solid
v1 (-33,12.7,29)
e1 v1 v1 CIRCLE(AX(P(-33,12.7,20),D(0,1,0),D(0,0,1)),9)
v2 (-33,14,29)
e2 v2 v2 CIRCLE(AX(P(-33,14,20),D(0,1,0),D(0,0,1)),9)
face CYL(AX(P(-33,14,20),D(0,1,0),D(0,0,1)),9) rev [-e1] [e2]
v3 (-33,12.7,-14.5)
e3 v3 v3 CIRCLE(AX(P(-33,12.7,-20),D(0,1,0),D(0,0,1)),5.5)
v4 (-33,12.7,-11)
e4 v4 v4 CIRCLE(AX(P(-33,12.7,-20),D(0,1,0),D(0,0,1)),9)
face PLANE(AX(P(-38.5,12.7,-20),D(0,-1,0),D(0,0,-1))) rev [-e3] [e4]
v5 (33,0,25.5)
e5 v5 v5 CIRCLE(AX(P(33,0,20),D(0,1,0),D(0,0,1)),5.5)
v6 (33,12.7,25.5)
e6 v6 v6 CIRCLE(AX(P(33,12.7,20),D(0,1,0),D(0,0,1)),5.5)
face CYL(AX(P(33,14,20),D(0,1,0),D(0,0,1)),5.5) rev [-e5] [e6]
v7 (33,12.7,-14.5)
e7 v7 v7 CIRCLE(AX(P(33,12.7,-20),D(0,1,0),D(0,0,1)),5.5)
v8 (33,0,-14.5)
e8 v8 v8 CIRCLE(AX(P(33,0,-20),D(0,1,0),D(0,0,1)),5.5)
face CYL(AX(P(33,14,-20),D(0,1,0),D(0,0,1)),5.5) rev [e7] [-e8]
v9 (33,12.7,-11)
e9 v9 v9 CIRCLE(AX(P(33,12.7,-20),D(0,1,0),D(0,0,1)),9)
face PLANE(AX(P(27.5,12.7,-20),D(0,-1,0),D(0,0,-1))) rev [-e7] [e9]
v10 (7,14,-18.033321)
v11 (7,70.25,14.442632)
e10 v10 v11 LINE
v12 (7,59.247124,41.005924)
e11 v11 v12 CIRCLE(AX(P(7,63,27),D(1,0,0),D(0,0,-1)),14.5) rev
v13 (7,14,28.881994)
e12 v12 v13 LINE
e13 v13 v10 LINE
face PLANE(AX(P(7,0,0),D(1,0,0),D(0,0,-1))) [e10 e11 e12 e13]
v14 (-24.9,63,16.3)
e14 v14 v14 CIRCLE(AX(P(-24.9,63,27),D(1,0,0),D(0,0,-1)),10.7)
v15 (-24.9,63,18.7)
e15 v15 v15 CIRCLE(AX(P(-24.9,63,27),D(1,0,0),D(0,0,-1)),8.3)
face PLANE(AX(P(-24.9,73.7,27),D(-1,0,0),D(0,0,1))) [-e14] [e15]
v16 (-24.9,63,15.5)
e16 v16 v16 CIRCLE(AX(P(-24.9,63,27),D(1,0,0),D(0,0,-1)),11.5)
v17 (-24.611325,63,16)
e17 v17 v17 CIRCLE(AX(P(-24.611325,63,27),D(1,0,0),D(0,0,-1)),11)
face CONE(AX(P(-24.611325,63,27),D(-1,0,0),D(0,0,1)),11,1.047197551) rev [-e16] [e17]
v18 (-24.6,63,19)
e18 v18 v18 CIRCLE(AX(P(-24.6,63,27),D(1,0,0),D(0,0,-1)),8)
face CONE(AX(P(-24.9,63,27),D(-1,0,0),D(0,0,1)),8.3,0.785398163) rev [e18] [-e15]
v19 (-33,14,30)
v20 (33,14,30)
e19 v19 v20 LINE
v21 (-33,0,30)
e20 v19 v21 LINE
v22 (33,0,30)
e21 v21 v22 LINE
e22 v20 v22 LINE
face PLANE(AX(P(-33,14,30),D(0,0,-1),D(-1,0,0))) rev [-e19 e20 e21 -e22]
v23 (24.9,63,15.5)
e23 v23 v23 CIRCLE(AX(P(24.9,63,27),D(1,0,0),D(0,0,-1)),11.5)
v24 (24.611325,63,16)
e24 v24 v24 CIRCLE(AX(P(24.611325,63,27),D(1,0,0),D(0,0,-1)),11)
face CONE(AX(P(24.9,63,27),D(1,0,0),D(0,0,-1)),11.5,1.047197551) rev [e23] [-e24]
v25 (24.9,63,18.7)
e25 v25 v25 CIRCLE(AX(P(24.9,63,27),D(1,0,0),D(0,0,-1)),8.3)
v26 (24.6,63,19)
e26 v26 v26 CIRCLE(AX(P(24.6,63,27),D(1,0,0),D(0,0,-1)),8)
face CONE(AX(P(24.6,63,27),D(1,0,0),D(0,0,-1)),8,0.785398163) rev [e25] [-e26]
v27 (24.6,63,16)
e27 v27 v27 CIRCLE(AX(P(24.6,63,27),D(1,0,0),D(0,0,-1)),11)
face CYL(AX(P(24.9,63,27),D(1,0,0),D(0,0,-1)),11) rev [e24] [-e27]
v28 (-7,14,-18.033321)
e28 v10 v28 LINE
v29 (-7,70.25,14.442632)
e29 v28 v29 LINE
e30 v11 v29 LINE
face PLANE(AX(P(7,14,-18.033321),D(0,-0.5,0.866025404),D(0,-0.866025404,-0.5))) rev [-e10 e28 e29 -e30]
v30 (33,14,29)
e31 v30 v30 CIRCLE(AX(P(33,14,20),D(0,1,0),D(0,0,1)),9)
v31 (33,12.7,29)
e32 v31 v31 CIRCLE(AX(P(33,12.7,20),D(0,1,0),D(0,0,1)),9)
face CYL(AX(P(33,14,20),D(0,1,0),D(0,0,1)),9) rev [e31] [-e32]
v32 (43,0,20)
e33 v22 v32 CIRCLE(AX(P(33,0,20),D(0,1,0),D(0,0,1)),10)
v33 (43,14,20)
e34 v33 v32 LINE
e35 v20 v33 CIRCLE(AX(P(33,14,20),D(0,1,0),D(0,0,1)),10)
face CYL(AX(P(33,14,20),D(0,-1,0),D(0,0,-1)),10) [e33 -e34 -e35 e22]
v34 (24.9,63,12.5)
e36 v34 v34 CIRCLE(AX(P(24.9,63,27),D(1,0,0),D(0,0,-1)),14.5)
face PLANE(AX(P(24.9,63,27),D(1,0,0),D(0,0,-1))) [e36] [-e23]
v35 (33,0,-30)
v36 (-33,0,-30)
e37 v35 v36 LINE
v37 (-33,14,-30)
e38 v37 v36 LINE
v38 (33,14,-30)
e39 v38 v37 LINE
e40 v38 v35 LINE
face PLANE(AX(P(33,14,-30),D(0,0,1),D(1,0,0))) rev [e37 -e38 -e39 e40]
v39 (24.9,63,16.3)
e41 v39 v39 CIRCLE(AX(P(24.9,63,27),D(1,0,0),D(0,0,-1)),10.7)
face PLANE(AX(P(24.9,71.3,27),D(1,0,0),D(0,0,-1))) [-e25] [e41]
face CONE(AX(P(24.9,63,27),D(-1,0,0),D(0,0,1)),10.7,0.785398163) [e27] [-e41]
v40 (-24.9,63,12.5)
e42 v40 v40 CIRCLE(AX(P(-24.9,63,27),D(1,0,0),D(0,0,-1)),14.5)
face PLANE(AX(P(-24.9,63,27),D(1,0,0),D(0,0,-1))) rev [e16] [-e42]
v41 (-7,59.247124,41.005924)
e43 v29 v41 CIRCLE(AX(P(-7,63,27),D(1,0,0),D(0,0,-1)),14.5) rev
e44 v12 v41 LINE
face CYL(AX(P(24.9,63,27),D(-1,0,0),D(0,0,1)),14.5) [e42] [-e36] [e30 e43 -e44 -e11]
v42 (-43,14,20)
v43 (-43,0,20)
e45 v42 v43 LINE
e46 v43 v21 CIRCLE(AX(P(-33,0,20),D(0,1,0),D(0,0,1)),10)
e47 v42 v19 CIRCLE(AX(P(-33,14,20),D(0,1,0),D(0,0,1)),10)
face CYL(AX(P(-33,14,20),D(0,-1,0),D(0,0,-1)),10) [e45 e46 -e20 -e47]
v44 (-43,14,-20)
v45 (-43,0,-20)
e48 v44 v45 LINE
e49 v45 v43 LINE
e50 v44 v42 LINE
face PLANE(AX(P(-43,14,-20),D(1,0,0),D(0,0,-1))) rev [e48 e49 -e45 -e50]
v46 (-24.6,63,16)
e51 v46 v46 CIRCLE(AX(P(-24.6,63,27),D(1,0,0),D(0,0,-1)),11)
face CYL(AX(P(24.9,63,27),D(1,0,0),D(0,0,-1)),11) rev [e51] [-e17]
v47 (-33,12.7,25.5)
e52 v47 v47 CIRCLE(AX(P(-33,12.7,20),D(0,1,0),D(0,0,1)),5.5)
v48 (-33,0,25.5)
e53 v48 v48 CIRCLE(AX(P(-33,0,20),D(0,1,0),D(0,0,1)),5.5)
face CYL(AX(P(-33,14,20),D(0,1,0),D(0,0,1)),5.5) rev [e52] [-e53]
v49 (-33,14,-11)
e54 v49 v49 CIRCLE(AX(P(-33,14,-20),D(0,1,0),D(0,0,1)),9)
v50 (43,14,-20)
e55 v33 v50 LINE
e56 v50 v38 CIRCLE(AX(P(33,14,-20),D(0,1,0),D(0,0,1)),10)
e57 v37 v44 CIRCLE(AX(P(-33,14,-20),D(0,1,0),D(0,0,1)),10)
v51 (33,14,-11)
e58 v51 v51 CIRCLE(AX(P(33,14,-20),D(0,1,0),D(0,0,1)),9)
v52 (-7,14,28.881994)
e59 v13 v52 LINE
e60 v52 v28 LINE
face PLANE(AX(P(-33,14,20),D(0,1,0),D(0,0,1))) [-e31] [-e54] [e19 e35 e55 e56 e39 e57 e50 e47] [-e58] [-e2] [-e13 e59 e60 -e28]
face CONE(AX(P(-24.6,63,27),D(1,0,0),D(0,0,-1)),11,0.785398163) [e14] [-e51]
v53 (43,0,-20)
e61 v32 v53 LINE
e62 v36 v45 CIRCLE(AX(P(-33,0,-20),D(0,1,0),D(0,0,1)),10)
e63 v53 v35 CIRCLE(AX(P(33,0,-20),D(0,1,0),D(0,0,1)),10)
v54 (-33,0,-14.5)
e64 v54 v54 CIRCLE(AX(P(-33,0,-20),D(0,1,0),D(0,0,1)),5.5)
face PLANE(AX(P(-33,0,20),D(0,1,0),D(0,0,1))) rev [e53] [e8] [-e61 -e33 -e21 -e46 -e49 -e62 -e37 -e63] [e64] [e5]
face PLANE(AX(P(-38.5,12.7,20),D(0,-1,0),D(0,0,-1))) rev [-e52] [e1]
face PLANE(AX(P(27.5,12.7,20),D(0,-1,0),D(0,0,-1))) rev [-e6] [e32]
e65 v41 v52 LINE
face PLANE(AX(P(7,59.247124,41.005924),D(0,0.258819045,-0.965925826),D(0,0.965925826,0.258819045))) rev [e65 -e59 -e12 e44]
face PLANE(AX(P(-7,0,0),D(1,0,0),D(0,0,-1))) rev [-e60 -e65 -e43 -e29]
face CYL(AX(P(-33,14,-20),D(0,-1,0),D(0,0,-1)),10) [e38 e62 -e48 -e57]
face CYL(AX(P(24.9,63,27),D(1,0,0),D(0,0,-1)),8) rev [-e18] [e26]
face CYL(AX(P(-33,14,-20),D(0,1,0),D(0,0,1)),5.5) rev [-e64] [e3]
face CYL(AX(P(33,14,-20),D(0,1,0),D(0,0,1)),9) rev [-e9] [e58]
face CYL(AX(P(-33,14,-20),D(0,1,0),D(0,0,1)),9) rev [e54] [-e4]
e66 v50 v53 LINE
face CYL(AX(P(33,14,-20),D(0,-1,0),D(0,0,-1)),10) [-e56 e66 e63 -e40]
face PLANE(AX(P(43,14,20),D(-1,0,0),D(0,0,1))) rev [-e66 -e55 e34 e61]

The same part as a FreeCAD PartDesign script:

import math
import FreeCAD as App
import Part
import Sketcher
Q = App.Units.Quantity

doc = App.newDocument("Part")
params = doc.addObject("Spreadsheet::Sheet", "Params")
for row, (alias, value) in enumerate([
    ("sketch1_radius", "10 mm"),
    ("sketch1_width", "66 mm"),
    ("sketch1_height", "40 mm"),
    ("pad1_length", "14 mm"),
    ("pad2_length", "7 mm"),
    ("pad2_length2", "7 mm"),
    ("sketch3_diameter", "29 mm"),
    ("pad3_length", "24.9 mm"),
    ("pad3_length2", "24.9 mm"),
    ("sketch4_width", "9 mm"),
    ("sketch4_height", "14 mm"),
    ("sketch4_width2", "5.5 mm"),
    ("sketch4_height2", "1.3 mm"),
    ("groove_angle", "360 deg"),
    ("sketch5_width", "9 mm"),
    ("sketch5_height", "14 mm"),
    ("sketch5_width2", "5.5 mm"),
    ("sketch5_height2", "1.3 mm"),
    ("groove2_angle", "360 deg"),
    ("sketch6_width", "9 mm"),
    ("sketch6_height", "14 mm"),
    ("sketch6_width2", "5.5 mm"),
    ("sketch6_height2", "1.3 mm"),
    ("groove3_angle", "360 deg"),
    ("sketch7_width", "9 mm"),
    ("sketch7_height", "14 mm"),
    ("sketch7_width2", "5.5 mm"),
    ("sketch7_height2", "1.3 mm"),
    ("groove4_angle", "360 deg"),
    ("sketch8_width", "49.8 mm"),
    ("sketch8_height", "11.5 mm"),
    ("groove5_angle", "360 deg"),
    ("sketch9_width", "49.2 mm"),
    ("sketch9_width2", "49.8 mm"),
    ("sketch9_height", "2.4 mm"),
    ("revolution_angle", "360 deg"),
], start=1):
    params.set(f"A{row}", alias)
    params.set(f"B{row}", "=" + value)
    params.setAlias(f"B{row}", alias)

body = doc.addObject("PartDesign::Body", "Body")

# Sketch on XZ plane
sketch1 = doc.addObject("Sketcher::SketchObject", "Sketch")
body.addObject(sketch1)
sketch1.AttachmentSupport = (doc.XZ_Plane, [""])
sketch1.MapMode = "FlatFace"
sketch1.addGeometry(Part.LineSegment(App.Vector(-33, 30, 0), App.Vector(33, 30, 0)), False)
sketch1.addGeometry(Part.ArcOfCircle(Part.Circle(App.Vector(33, 20, 0), App.Vector(0, 0, 1), 10), math.radians(0), math.radians(90)), False)
sketch1.addGeometry(Part.LineSegment(App.Vector(43, 20, 0), App.Vector(43, -20, 0)), False)
sketch1.addGeometry(Part.ArcOfCircle(Part.Circle(App.Vector(33, -20, 0), App.Vector(0, 0, 1), 10), math.radians(-90), math.radians(0)), False)
sketch1.addGeometry(Part.LineSegment(App.Vector(33, -30, 0), App.Vector(-33, -30, 0)), False)
sketch1.addGeometry(Part.ArcOfCircle(Part.Circle(App.Vector(-33, -20, 0), App.Vector(0, 0, 1), 10), math.radians(180), math.radians(270)), False)
sketch1.addGeometry(Part.LineSegment(App.Vector(-43, -20, 0), App.Vector(-43, 20, 0)), False)
sketch1.addGeometry(Part.ArcOfCircle(Part.Circle(App.Vector(-33, 20, 0), App.Vector(0, 0, 1), 10), math.radians(90), math.radians(180)), False)
sketch1.addConstraint(Sketcher.Constraint("Tangent", 0, 2, 1, 2))
sketch1.addConstraint(Sketcher.Constraint("Tangent", 1, 1, 2, 1))
sketch1.addConstraint(Sketcher.Constraint("Tangent", 2, 2, 3, 2))
sketch1.addConstraint(Sketcher.Constraint("Tangent", 3, 1, 4, 1))
sketch1.addConstraint(Sketcher.Constraint("Tangent", 4, 2, 5, 2))
sketch1.addConstraint(Sketcher.Constraint("Tangent", 5, 1, 6, 1))
sketch1.addConstraint(Sketcher.Constraint("Tangent", 6, 2, 7, 2))
sketch1.addConstraint(Sketcher.Constraint("Tangent", 7, 1, 0, 1))
sketch1.addConstraint(Sketcher.Constraint("Horizontal", 0))
sketch1.addConstraint(Sketcher.Constraint("Vertical", 2))
sketch1.addConstraint(Sketcher.Constraint("Horizontal", 4))
sketch1.addConstraint(Sketcher.Constraint("Vertical", 6))
sketch1.addConstraint(Sketcher.Constraint("Equal", 1, 3))
sketch1.addConstraint(Sketcher.Constraint("Equal", 3, 5))
sketch1.addConstraint(Sketcher.Constraint("Equal", 5, 7))
sketch1.addConstraint(Sketcher.Constraint("Symmetric", 1, 3, 5, 3, -1, 1))
sketch1.addConstraint(Sketcher.Constraint("Radius", 1, Q("10 mm")))
sketch1.addConstraint(Sketcher.Constraint("DistanceX", 0, 1, 0, 2, Q("66 mm")))
sketch1.addConstraint(Sketcher.Constraint("DistanceY", 2, 2, 2, 1, Q("40 mm")))
sketch1.setExpression("Constraints[16]", "Params.sketch1_radius")
sketch1.setExpression("Constraints[17]", "Params.sketch1_width")
sketch1.setExpression("Constraints[18]", "Params.sketch1_height")
pad1 = doc.addObject("PartDesign::Pad", "Pad")
body.addObject(pad1)
pad1.Profile = sketch1
pad1.setExpression("Length", "Params.pad1_length")
pad1.Reversed = True

# Sketch on YZ plane
sketch2 = doc.addObject("Sketcher::SketchObject", "Sketch001")
body.addObject(sketch2)
sketch2.AttachmentSupport = (doc.YZ_Plane, [""])
sketch2.MapMode = "FlatFace"
sketch2.addGeometry(Part.LineSegment(App.Vector(59.247124, 41.005924, 0), App.Vector(14, 28.881994, 0)), False)
sketch2.addGeometry(Part.LineSegment(App.Vector(14, 28.881994, 0), App.Vector(14, -18.033321, 0)), False)
sketch2.addGeometry(Part.LineSegment(App.Vector(14, -18.033321, 0), App.Vector(70.25, 14.442632, 0)), False)
sketch2.addGeometry(Part.LineSegment(App.Vector(70.25, 14.442632, 0), App.Vector(59.247124, 41.005924, 0)), False)
sketch2.addConstraint(Sketcher.Constraint("Coincident", 0, 2, 1, 1))
sketch2.addConstraint(Sketcher.Constraint("Coincident", 1, 2, 2, 1))
sketch2.addConstraint(Sketcher.Constraint("Coincident", 2, 2, 3, 1))
sketch2.addConstraint(Sketcher.Constraint("Coincident", 3, 2, 0, 1))
sketch2.addConstraint(Sketcher.Constraint("Vertical", 1))
sketch2.addConstraint(Sketcher.Constraint("Angle", 0, Q("-165 deg")))
sketch2.addConstraint(Sketcher.Constraint("Angle", 2, Q("30 deg")))
sketch2.addConstraint(Sketcher.Constraint("DistanceX", -1, 1, 0, 2, Q("14 mm")))
sketch2.addConstraint(Sketcher.Constraint("Angle", 3, Q("112.5 deg")))
sketch2.addConstraint(Sketcher.Constraint("DistanceX", -1, 1, 2, 2, Q("70.25 mm")))
sketch2.addConstraint(Sketcher.Constraint("Distance", 3, Q("28.751901 mm")))
sketch2.addConstraint(Sketcher.Constraint("DistanceY", 1, 2, -1, 1, Q("18.033321 mm")))
pad2 = doc.addObject("PartDesign::Pad", "Pad001")
body.addObject(pad2)
pad2.Profile = sketch2
pad2.Type = "TwoLengths"
pad2.setExpression("Length", "Params.pad2_length")
pad2.setExpression("Length2", "Params.pad2_length2")

# Sketch on YZ plane
sketch3 = doc.addObject("Sketcher::SketchObject", "Sketch002")
body.addObject(sketch3)
sketch3.AttachmentSupport = (doc.YZ_Plane, [""])
sketch3.MapMode = "FlatFace"
sketch3.addGeometry(Part.Circle(App.Vector(63, 27, 0), App.Vector(0, 0, 1), 14.5), False)
sketch3.addConstraint(Sketcher.Constraint("Diameter", 0, Q("29 mm")))
sketch3.addConstraint(Sketcher.Constraint("DistanceX", -1, 1, 0, 3, Q("63 mm")))
sketch3.addConstraint(Sketcher.Constraint("DistanceY", -1, 1, 0, 3, Q("27 mm")))
sketch3.setExpression("Constraints[0]", "Params.sketch3_diameter")
pad3 = doc.addObject("PartDesign::Pad", "Pad002")
body.addObject(pad3)
pad3.Profile = sketch3
pad3.Type = "TwoLengths"
pad3.setExpression("Length", "Params.pad3_length")
pad3.setExpression("Length2", "Params.pad3_length2")

# Sketch on XY plane
sketch4 = doc.addObject("Sketcher::SketchObject", "Sketch003")
body.addObject(sketch4)
sketch4.AttachmentSupport = (doc.XY_Plane, [""])
sketch4.MapMode = "FlatFace"
sketch4.AttachmentOffset = App.Placement(App.Vector(0, 0, 20), App.Rotation())
sketch4.addGeometry(Part.LineSegment(App.Vector(-38.5, 0, 0), App.Vector(-33, 0, 0)), False)
sketch4.addGeometry(Part.LineSegment(App.Vector(-33, 0, 0), App.Vector(-33, 14, 0)), False)
sketch4.addGeometry(Part.LineSegment(App.Vector(-33, 14, 0), App.Vector(-42, 14, 0)), False)
sketch4.addGeometry(Part.LineSegment(App.Vector(-42, 14, 0), App.Vector(-42, 12.7, 0)), False)
sketch4.addGeometry(Part.LineSegment(App.Vector(-42, 12.7, 0), App.Vector(-38.5, 12.7, 0)), False)
sketch4.addGeometry(Part.LineSegment(App.Vector(-38.5, 12.7, 0), App.Vector(-38.5, 0, 0)), False)
sketch4.addGeometry(Part.LineSegment(App.Vector(-33, 14, 0), App.Vector(-33, 0, 0)), True)  # axis
sketch4.addConstraint(Sketcher.Constraint("Coincident", 0, 2, 1, 1))
sketch4.addConstraint(Sketcher.Constraint("Coincident", 1, 2, 2, 1))
sketch4.addConstraint(Sketcher.Constraint("Coincident", 2, 2, 3, 1))
sketch4.addConstraint(Sketcher.Constraint("Coincident", 3, 2, 4, 1))
sketch4.addConstraint(Sketcher.Constraint("Coincident", 4, 2, 5, 1))
sketch4.addConstraint(Sketcher.Constraint("Coincident", 5, 2, 0, 1))
sketch4.addConstraint(Sketcher.Constraint("Horizontal", 0))
sketch4.addConstraint(Sketcher.Constraint("Vertical", 1))
sketch4.addConstraint(Sketcher.Constraint("Horizontal", 2))
sketch4.addConstraint(Sketcher.Constraint("Vertical", 3))
sketch4.addConstraint(Sketcher.Constraint("Horizontal", 4))
sketch4.addConstraint(Sketcher.Constraint("Vertical", 5))
sketch4.addConstraint(Sketcher.Constraint("Vertical", 6))
sketch4.addConstraint(Sketcher.Constraint("Coincident", 6, 1, 1, 2))
sketch4.addConstraint(Sketcher.Constraint("PointOnObject", 0, 2, -1))
sketch4.addConstraint(Sketcher.Constraint("PointOnObject", 6, 2, -1))
sketch4.addConstraint(Sketcher.Constraint("DistanceX", 2, 2, 2, 1, Q("9 mm")))
sketch4.addConstraint(Sketcher.Constraint("DistanceY", 1, 1, 1, 2, Q("14 mm")))
sketch4.addConstraint(Sketcher.Constraint("DistanceX", 0, 1, 0, 2, Q("5.5 mm")))
sketch4.addConstraint(Sketcher.Constraint("DistanceY", 3, 2, 3, 1, Q("1.3 mm")))
sketch4.addConstraint(Sketcher.Constraint("DistanceX", 0, 2, -1, 1, Q("33 mm")))
sketch4.setExpression("Constraints[16]", "Params.sketch4_width")
sketch4.setExpression("Constraints[17]", "Params.sketch4_height")
sketch4.setExpression("Constraints[18]", "Params.sketch4_width2")
sketch4.setExpression("Constraints[19]", "Params.sketch4_height2")
groove = doc.addObject("PartDesign::Groove", "Groove")
body.addObject(groove)
groove.Profile = sketch4
groove.ReferenceAxis = (sketch4, ["Axis0"])
groove.setExpression("Angle", "Params.groove_angle")

# Sketch on XY plane
sketch5 = doc.addObject("Sketcher::SketchObject", "Sketch004")
body.addObject(sketch5)
sketch5.AttachmentSupport = (doc.XY_Plane, [""])
sketch5.MapMode = "FlatFace"
sketch5.AttachmentOffset = App.Placement(App.Vector(0, 0, -20), App.Rotation())
sketch5.addGeometry(Part.LineSegment(App.Vector(-38.5, 0, 0), App.Vector(-33, 0, 0)), False)
sketch5.addGeometry(Part.LineSegment(App.Vector(-33, 0, 0), App.Vector(-33, 14, 0)), False)
sketch5.addGeometry(Part.LineSegment(App.Vector(-33, 14, 0), App.Vector(-42, 14, 0)), False)
sketch5.addGeometry(Part.LineSegment(App.Vector(-42, 14, 0), App.Vector(-42, 12.7, 0)), False)
sketch5.addGeometry(Part.LineSegment(App.Vector(-42, 12.7, 0), App.Vector(-38.5, 12.7, 0)), False)
sketch5.addGeometry(Part.LineSegment(App.Vector(-38.5, 12.7, 0), App.Vector(-38.5, 0, 0)), False)
sketch5.addGeometry(Part.LineSegment(App.Vector(-33, 14, 0), App.Vector(-33, 0, 0)), True)  # axis
sketch5.addConstraint(Sketcher.Constraint("Coincident", 0, 2, 1, 1))
sketch5.addConstraint(Sketcher.Constraint("Coincident", 1, 2, 2, 1))
sketch5.addConstraint(Sketcher.Constraint("Coincident", 2, 2, 3, 1))
sketch5.addConstraint(Sketcher.Constraint("Coincident", 3, 2, 4, 1))
sketch5.addConstraint(Sketcher.Constraint("Coincident", 4, 2, 5, 1))
sketch5.addConstraint(Sketcher.Constraint("Coincident", 5, 2, 0, 1))
sketch5.addConstraint(Sketcher.Constraint("Horizontal", 0))
sketch5.addConstraint(Sketcher.Constraint("Vertical", 1))
sketch5.addConstraint(Sketcher.Constraint("Horizontal", 2))
sketch5.addConstraint(Sketcher.Constraint("Vertical", 3))
sketch5.addConstraint(Sketcher.Constraint("Horizontal", 4))
sketch5.addConstraint(Sketcher.Constraint("Vertical", 5))
sketch5.addConstraint(Sketcher.Constraint("Vertical", 6))
sketch5.addConstraint(Sketcher.Constraint("Coincident", 6, 1, 1, 2))
sketch5.addConstraint(Sketcher.Constraint("PointOnObject", 0, 2, -1))
sketch5.addConstraint(Sketcher.Constraint("PointOnObject", 6, 2, -1))
sketch5.addConstraint(Sketcher.Constraint("DistanceX", 2, 2, 2, 1, Q("9 mm")))
sketch5.addConstraint(Sketcher.Constraint("DistanceY", 1, 1, 1, 2, Q("14 mm")))
sketch5.addConstraint(Sketcher.Constraint("DistanceX", 0, 1, 0, 2, Q("5.5 mm")))
sketch5.addConstraint(Sketcher.Constraint("DistanceY", 3, 2, 3, 1, Q("1.3 mm")))
sketch5.addConstraint(Sketcher.Constraint("DistanceX", 0, 2, -1, 1, Q("33 mm")))
sketch5.setExpression("Constraints[16]", "Params.sketch5_width")
sketch5.setExpression("Constraints[17]", "Params.sketch5_height")
sketch5.setExpression("Constraints[18]", "Params.sketch5_width2")
sketch5.setExpression("Constraints[19]", "Params.sketch5_height2")
groove2 = doc.addObject("PartDesign::Groove", "Groove001")
body.addObject(groove2)
groove2.Profile = sketch5
groove2.ReferenceAxis = (sketch5, ["Axis0"])
groove2.setExpression("Angle", "Params.groove2_angle")

# Sketch on XY plane
sketch6 = doc.addObject("Sketcher::SketchObject", "Sketch005")
body.addObject(sketch6)
sketch6.AttachmentSupport = (doc.XY_Plane, [""])
sketch6.MapMode = "FlatFace"
sketch6.AttachmentOffset = App.Placement(App.Vector(0, 0, 20), App.Rotation())
sketch6.addGeometry(Part.LineSegment(App.Vector(27.5, 0, 0), App.Vector(33, 0, 0)), False)
sketch6.addGeometry(Part.LineSegment(App.Vector(33, 0, 0), App.Vector(33, 14, 0)), False)
sketch6.addGeometry(Part.LineSegment(App.Vector(33, 14, 0), App.Vector(24, 14, 0)), False)
sketch6.addGeometry(Part.LineSegment(App.Vector(24, 14, 0), App.Vector(24, 12.7, 0)), False)
sketch6.addGeometry(Part.LineSegment(App.Vector(24, 12.7, 0), App.Vector(27.5, 12.7, 0)), False)
sketch6.addGeometry(Part.LineSegment(App.Vector(27.5, 12.7, 0), App.Vector(27.5, 0, 0)), False)
sketch6.addGeometry(Part.LineSegment(App.Vector(33, 14, 0), App.Vector(33, 0, 0)), True)  # axis
sketch6.addConstraint(Sketcher.Constraint("Coincident", 0, 2, 1, 1))
sketch6.addConstraint(Sketcher.Constraint("Coincident", 1, 2, 2, 1))
sketch6.addConstraint(Sketcher.Constraint("Coincident", 2, 2, 3, 1))
sketch6.addConstraint(Sketcher.Constraint("Coincident", 3, 2, 4, 1))
sketch6.addConstraint(Sketcher.Constraint("Coincident", 4, 2, 5, 1))
sketch6.addConstraint(Sketcher.Constraint("Coincident", 5, 2, 0, 1))
sketch6.addConstraint(Sketcher.Constraint("Horizontal", 0))
sketch6.addConstraint(Sketcher.Constraint("Vertical", 1))
sketch6.addConstraint(Sketcher.Constraint("Horizontal", 2))
sketch6.addConstraint(Sketcher.Constraint("Vertical", 3))
sketch6.addConstraint(Sketcher.Constraint("Horizontal", 4))
sketch6.addConstraint(Sketcher.Constraint("Vertical", 5))
sketch6.addConstraint(Sketcher.Constraint("Vertical", 6))
sketch6.addConstraint(Sketcher.Constraint("Coincident", 6, 1, 1, 2))
sketch6.addConstraint(Sketcher.Constraint("PointOnObject", 0, 2, -1))
sketch6.addConstraint(Sketcher.Constraint("PointOnObject", 6, 2, -1))
sketch6.addConstraint(Sketcher.Constraint("DistanceX", 2, 2, 2, 1, Q("9 mm")))
sketch6.addConstraint(Sketcher.Constraint("DistanceY", 1, 1, 1, 2, Q("14 mm")))
sketch6.addConstraint(Sketcher.Constraint("DistanceX", 0, 1, 0, 2, Q("5.5 mm")))
sketch6.addConstraint(Sketcher.Constraint("DistanceY", 3, 2, 3, 1, Q("1.3 mm")))
sketch6.addConstraint(Sketcher.Constraint("DistanceX", -1, 1, 0, 2, Q("33 mm")))
sketch6.setExpression("Constraints[16]", "Params.sketch6_width")
sketch6.setExpression("Constraints[17]", "Params.sketch6_height")
sketch6.setExpression("Constraints[18]", "Params.sketch6_width2")
sketch6.setExpression("Constraints[19]", "Params.sketch6_height2")
groove3 = doc.addObject("PartDesign::Groove", "Groove002")
body.addObject(groove3)
groove3.Profile = sketch6
groove3.ReferenceAxis = (sketch6, ["Axis0"])
groove3.setExpression("Angle", "Params.groove3_angle")

# Sketch on XY plane
sketch7 = doc.addObject("Sketcher::SketchObject", "Sketch006")
body.addObject(sketch7)
sketch7.AttachmentSupport = (doc.XY_Plane, [""])
sketch7.MapMode = "FlatFace"
sketch7.AttachmentOffset = App.Placement(App.Vector(0, 0, -20), App.Rotation())
sketch7.addGeometry(Part.LineSegment(App.Vector(27.5, 0, 0), App.Vector(33, 0, 0)), False)
sketch7.addGeometry(Part.LineSegment(App.Vector(33, 0, 0), App.Vector(33, 14, 0)), False)
sketch7.addGeometry(Part.LineSegment(App.Vector(33, 14, 0), App.Vector(24, 14, 0)), False)
sketch7.addGeometry(Part.LineSegment(App.Vector(24, 14, 0), App.Vector(24, 12.7, 0)), False)
sketch7.addGeometry(Part.LineSegment(App.Vector(24, 12.7, 0), App.Vector(27.5, 12.7, 0)), False)
sketch7.addGeometry(Part.LineSegment(App.Vector(27.5, 12.7, 0), App.Vector(27.5, 0, 0)), False)
sketch7.addGeometry(Part.LineSegment(App.Vector(33, 14, 0), App.Vector(33, 0, 0)), True)  # axis
sketch7.addConstraint(Sketcher.Constraint("Coincident", 0, 2, 1, 1))
sketch7.addConstraint(Sketcher.Constraint("Coincident", 1, 2, 2, 1))
sketch7.addConstraint(Sketcher.Constraint("Coincident", 2, 2, 3, 1))
sketch7.addConstraint(Sketcher.Constraint("Coincident", 3, 2, 4, 1))
sketch7.addConstraint(Sketcher.Constraint("Coincident", 4, 2, 5, 1))
sketch7.addConstraint(Sketcher.Constraint("Coincident", 5, 2, 0, 1))
sketch7.addConstraint(Sketcher.Constraint("Horizontal", 0))
sketch7.addConstraint(Sketcher.Constraint("Vertical", 1))
sketch7.addConstraint(Sketcher.Constraint("Horizontal", 2))
sketch7.addConstraint(Sketcher.Constraint("Vertical", 3))
sketch7.addConstraint(Sketcher.Constraint("Horizontal", 4))
sketch7.addConstraint(Sketcher.Constraint("Vertical", 5))
sketch7.addConstraint(Sketcher.Constraint("Vertical", 6))
sketch7.addConstraint(Sketcher.Constraint("Coincident", 6, 1, 1, 2))
sketch7.addConstraint(Sketcher.Constraint("PointOnObject", 0, 2, -1))
sketch7.addConstraint(Sketcher.Constraint("PointOnObject", 6, 2, -1))
sketch7.addConstraint(Sketcher.Constraint("DistanceX", 2, 2, 2, 1, Q("9 mm")))
sketch7.addConstraint(Sketcher.Constraint("DistanceY", 1, 1, 1, 2, Q("14 mm")))
sketch7.addConstraint(Sketcher.Constraint("DistanceX", 0, 1, 0, 2, Q("5.5 mm")))
sketch7.addConstraint(Sketcher.Constraint("DistanceY", 3, 2, 3, 1, Q("1.3 mm")))
sketch7.addConstraint(Sketcher.Constraint("DistanceX", -1, 1, 0, 2, Q("33 mm")))
sketch7.setExpression("Constraints[16]", "Params.sketch7_width")
sketch7.setExpression("Constraints[17]", "Params.sketch7_height")
sketch7.setExpression("Constraints[18]", "Params.sketch7_width2")
sketch7.setExpression("Constraints[19]", "Params.sketch7_height2")
groove4 = doc.addObject("PartDesign::Groove", "Groove003")
body.addObject(groove4)
groove4.Profile = sketch7
groove4.ReferenceAxis = (sketch7, ["Axis0"])
groove4.setExpression("Angle", "Params.groove4_angle")

# Sketch on XY plane
sketch8 = doc.addObject("Sketcher::SketchObject", "Sketch007")
body.addObject(sketch8)
sketch8.AttachmentSupport = (doc.XY_Plane, [""])
sketch8.MapMode = "FlatFace"
sketch8.AttachmentOffset = App.Placement(App.Vector(0, 0, 27), App.Rotation())
sketch8.addGeometry(Part.LineSegment(App.Vector(-24.9, 74.5, 0), App.Vector(-24.9, 63, 0)), False)
sketch8.addGeometry(Part.LineSegment(App.Vector(-24.9, 63, 0), App.Vector(24.9, 63, 0)), False)
sketch8.addGeometry(Part.LineSegment(App.Vector(24.9, 63, 0), App.Vector(24.9, 74.5, 0)), False)
sketch8.addGeometry(Part.LineSegment(App.Vector(24.9, 74.5, 0), App.Vector(24.611325, 74, 0)), False)
sketch8.addGeometry(Part.LineSegment(App.Vector(24.611325, 74, 0), App.Vector(-24.611325, 74, 0)), False)
sketch8.addGeometry(Part.LineSegment(App.Vector(-24.611325, 74, 0), App.Vector(-24.9, 74.5, 0)), False)
sketch8.addGeometry(Part.LineSegment(App.Vector(24.9, 63, 0), App.Vector(-24.9, 63, 0)), True)  # axis
sketch8.addConstraint(Sketcher.Constraint("Coincident", 0, 2, 1, 1))
sketch8.addConstraint(Sketcher.Constraint("Coincident", 1, 2, 2, 1))
sketch8.addConstraint(Sketcher.Constraint("Coincident", 2, 2, 3, 1))
sketch8.addConstraint(Sketcher.Constraint("Coincident", 3, 2, 4, 1))
sketch8.addConstraint(Sketcher.Constraint("Coincident", 4, 2, 5, 1))
sketch8.addConstraint(Sketcher.Constraint("Coincident", 5, 2, 0, 1))
sketch8.addConstraint(Sketcher.Constraint("Vertical", 0))
sketch8.addConstraint(Sketcher.Constraint("Horizontal", 1))
sketch8.addConstraint(Sketcher.Constraint("Vertical", 2))
sketch8.addConstraint(Sketcher.Constraint("Horizontal", 4))
sketch8.addConstraint(Sketcher.Constraint("Horizontal", 6))
sketch8.addConstraint(Sketcher.Constraint("Coincident", 6, 1, 1, 2))
sketch8.addConstraint(Sketcher.Constraint("Symmetric", 2, 2, 5, 2, -2))
sketch8.addConstraint(Sketcher.Constraint("Vertical", 5, 2, 6, 2))
sketch8.addConstraint(Sketcher.Constraint("Equal", 3, 5))
sketch8.addConstraint(Sketcher.Constraint("Angle", 3, Q("-120 deg")))
sketch8.addConstraint(Sketcher.Constraint("DistanceX", 1, 1, 1, 2, Q("49.8 mm")))
sketch8.addConstraint(Sketcher.Constraint("DistanceY", 0, 2, 0, 1, Q("11.5 mm")))
sketch8.addConstraint(Sketcher.Constraint("DistanceY", -1, 1, 0, 2, Q("63 mm")))
sketch8.addConstraint(Sketcher.Constraint("DistanceY", -1, 1, 3, 2, Q("74 mm")))
sketch8.setExpression("Constraints[16]", "Params.sketch8_width")
sketch8.setExpression("Constraints[17]", "Params.sketch8_height")
groove5 = doc.addObject("PartDesign::Groove", "Groove004")
body.addObject(groove5)
groove5.Profile = sketch8
groove5.ReferenceAxis = (sketch8, ["Axis0"])
groove5.setExpression("Angle", "Params.groove5_angle")

# Sketch on XY plane
sketch9 = doc.addObject("Sketcher::SketchObject", "Sketch008")
body.addObject(sketch9)
sketch9.AttachmentSupport = (doc.XY_Plane, [""])
sketch9.MapMode = "FlatFace"
sketch9.AttachmentOffset = App.Placement(App.Vector(0, 0, 27), App.Rotation())
sketch9.addGeometry(Part.LineSegment(App.Vector(-24.9, 71.3, 0), App.Vector(-24.6, 71, 0)), False)
sketch9.addGeometry(Part.LineSegment(App.Vector(-24.6, 71, 0), App.Vector(24.6, 71, 0)), False)
sketch9.addGeometry(Part.LineSegment(App.Vector(24.6, 71, 0), App.Vector(24.9, 71.3, 0)), False)
sketch9.addGeometry(Part.LineSegment(App.Vector(24.9, 71.3, 0), App.Vector(24.9, 73.7, 0)), False)
sketch9.addGeometry(Part.LineSegment(App.Vector(24.9, 73.7, 0), App.Vector(24.6, 74, 0)), False)
sketch9.addGeometry(Part.LineSegment(App.Vector(24.6, 74, 0), App.Vector(-24.6, 74, 0)), False)
sketch9.addGeometry(Part.LineSegment(App.Vector(-24.6, 74, 0), App.Vector(-24.9, 73.7, 0)), False)
sketch9.addGeometry(Part.LineSegment(App.Vector(-24.9, 73.7, 0), App.Vector(-24.9, 71.3, 0)), False)
sketch9.addGeometry(Part.LineSegment(App.Vector(24.9, 63, 0), App.Vector(-24.9, 63, 0)), True)  # axis
sketch9.addConstraint(Sketcher.Constraint("Coincident", 0, 2, 1, 1))
sketch9.addConstraint(Sketcher.Constraint("Coincident", 1, 2, 2, 1))
sketch9.addConstraint(Sketcher.Constraint("Coincident", 2, 2, 3, 1))
sketch9.addConstraint(Sketcher.Constraint("Coincident", 3, 2, 4, 1))
sketch9.addConstraint(Sketcher.Constraint("Coincident", 4, 2, 5, 1))
sketch9.addConstraint(Sketcher.Constraint("Coincident", 5, 2, 6, 1))
sketch9.addConstraint(Sketcher.Constraint("Coincident", 6, 2, 7, 1))
sketch9.addConstraint(Sketcher.Constraint("Coincident", 7, 2, 0, 1))
sketch9.addConstraint(Sketcher.Constraint("Horizontal", 1))
sketch9.addConstraint(Sketcher.Constraint("Vertical", 3))
sketch9.addConstraint(Sketcher.Constraint("Horizontal", 5))
sketch9.addConstraint(Sketcher.Constraint("Vertical", 7))
sketch9.addConstraint(Sketcher.Constraint("Horizontal", 8))
sketch9.addConstraint(Sketcher.Constraint("Symmetric", 3, 2, 6, 2, -2))
sketch9.addConstraint(Sketcher.Constraint("Perpendicular", 0, 2))
sketch9.addConstraint(Sketcher.Constraint("Perpendicular", 2, 4))
sketch9.addConstraint(Sketcher.Constraint("Perpendicular", 4, 6))
sketch9.addConstraint(Sketcher.Constraint("Horizontal", 2, 2, 7, 2))
sketch9.addConstraint(Sketcher.Constraint("Vertical", 1, 2, 4, 2))
sketch9.addConstraint(Sketcher.Constraint("Vertical", 0, 2, 5, 2))
sketch9.addConstraint(Sketcher.Constraint("Vertical", 3, 2, 8, 1))
sketch9.addConstraint(Sketcher.Constraint("Vertical", 7, 2, 8, 2))
sketch9.addConstraint(Sketcher.Constraint("DistanceX", 1, 1, 1, 2, Q("49.2 mm")))
sketch9.addConstraint(Sketcher.Constraint("DistanceX", 8, 2, 8, 1, Q("49.8 mm")))
sketch9.addConstraint(Sketcher.Constraint("DistanceY", 3, 1, 3, 2, Q("2.4 mm")))
sketch9.addConstraint(Sketcher.Constraint("DistanceY", -1, 1, 0, 2, Q("71 mm")))
sketch9.addConstraint(Sketcher.Constraint("DistanceY", -1, 1, 8, 1, Q("63 mm")))
sketch9.setExpression("Constraints[22]", "Params.sketch9_width")
sketch9.setExpression("Constraints[23]", "Params.sketch9_width2")
sketch9.setExpression("Constraints[24]", "Params.sketch9_height")
revolution = doc.addObject("PartDesign::Revolution", "Revolution")
body.addObject(revolution)
revolution.Profile = sketch9
revolution.ReferenceAxis = (sketch9, ["Axis0"])
revolution.setExpression("Angle", "Params.revolution_angle")

doc.recompute()
